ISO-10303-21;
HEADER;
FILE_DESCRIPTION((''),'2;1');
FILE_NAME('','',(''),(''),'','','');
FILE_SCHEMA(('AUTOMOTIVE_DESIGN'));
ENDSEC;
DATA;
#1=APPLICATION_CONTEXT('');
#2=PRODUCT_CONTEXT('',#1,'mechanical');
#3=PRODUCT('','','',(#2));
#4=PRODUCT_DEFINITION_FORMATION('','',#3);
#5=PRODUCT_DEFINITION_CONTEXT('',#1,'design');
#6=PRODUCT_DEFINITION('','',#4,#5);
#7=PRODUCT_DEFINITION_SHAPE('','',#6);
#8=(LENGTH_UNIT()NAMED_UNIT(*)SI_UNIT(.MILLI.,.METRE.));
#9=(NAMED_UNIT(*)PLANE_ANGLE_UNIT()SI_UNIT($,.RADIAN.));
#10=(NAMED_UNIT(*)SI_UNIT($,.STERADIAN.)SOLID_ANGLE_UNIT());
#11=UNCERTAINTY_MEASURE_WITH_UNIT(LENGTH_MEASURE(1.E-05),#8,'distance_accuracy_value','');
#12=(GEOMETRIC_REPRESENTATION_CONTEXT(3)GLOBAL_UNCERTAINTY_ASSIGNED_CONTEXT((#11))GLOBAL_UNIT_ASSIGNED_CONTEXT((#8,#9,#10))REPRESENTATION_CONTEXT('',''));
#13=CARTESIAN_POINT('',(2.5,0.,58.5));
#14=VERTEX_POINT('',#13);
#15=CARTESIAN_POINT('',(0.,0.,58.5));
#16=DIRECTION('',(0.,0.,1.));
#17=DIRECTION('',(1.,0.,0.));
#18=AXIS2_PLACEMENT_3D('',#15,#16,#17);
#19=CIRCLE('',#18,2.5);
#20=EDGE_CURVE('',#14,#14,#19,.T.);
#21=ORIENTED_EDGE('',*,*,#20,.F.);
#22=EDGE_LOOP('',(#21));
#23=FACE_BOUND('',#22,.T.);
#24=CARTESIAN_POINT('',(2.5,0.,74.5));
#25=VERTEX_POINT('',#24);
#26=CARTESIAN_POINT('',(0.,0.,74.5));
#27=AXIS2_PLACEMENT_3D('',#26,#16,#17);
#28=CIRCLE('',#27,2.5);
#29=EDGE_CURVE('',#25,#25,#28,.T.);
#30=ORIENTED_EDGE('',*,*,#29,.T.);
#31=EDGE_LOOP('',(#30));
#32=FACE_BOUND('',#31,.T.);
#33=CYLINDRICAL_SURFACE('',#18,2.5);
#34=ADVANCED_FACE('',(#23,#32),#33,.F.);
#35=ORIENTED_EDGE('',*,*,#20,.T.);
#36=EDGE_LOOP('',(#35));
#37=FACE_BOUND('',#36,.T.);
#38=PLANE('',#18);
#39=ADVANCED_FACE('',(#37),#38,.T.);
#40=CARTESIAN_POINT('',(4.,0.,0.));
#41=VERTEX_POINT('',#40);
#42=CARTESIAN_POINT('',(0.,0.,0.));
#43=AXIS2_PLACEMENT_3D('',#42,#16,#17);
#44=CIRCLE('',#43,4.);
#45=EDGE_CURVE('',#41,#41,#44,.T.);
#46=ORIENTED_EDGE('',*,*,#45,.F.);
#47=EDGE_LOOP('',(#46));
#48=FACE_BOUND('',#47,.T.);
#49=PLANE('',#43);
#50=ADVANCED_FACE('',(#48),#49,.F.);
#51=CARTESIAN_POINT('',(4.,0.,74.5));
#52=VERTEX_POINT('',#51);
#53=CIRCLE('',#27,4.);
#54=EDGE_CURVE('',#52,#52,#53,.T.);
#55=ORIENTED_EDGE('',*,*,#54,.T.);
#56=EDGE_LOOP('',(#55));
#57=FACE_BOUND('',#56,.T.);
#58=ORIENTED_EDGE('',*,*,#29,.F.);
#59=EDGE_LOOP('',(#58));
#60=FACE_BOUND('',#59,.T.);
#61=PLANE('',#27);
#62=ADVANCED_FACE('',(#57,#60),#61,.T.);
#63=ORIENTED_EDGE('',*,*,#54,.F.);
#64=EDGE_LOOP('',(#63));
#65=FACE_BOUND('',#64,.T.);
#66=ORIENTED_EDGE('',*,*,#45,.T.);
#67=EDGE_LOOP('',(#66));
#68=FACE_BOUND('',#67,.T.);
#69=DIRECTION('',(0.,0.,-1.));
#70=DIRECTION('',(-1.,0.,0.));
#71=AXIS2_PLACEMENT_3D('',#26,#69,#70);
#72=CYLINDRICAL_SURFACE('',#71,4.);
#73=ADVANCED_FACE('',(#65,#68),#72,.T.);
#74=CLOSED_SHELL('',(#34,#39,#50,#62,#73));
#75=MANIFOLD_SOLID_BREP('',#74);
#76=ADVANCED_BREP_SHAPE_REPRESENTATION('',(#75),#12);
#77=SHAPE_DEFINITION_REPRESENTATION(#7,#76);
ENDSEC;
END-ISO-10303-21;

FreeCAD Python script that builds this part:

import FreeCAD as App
import Part
import Sketcher

V = App.Vector

doc = App.newDocument("Part")
body = doc.addObject("PartDesign::Body", "Body")

# Sketch on XY plane
sketch1 = body.newObject("Sketcher::SketchObject", "Sketch")
sketch1.AttachmentSupport = (doc.getObject("XY_Plane"), [""])
sketch1.MapMode = "FlatFace"
sketch1.addGeometry(Part.Circle(V(0, 0, 0), V(0, 0, 1), 4), False)
sketch1.addConstraint([
    Sketcher.Constraint("Coincident", 0, 3, -1, 1),
    Sketcher.Constraint("Diameter", 0, 8.0),
])
pad1 = body.newObject("PartDesign::Pad", "Pad")
pad1.Profile = sketch1
pad1.Length = 74.5

# Sketch on XY plane
sketch2 = body.newObject("Sketcher::SketchObject", "Sketch001")
sketch2.AttachmentSupport = (doc.getObject("XY_Plane"), [""])
sketch2.MapMode = "FlatFace"
sketch2.AttachmentOffset = App.Placement(V(0, 0, 74.5), App.Rotation())
sketch2.addGeometry(Part.Circle(V(0, 0, 0), V(0, 0, 1), 2.5), False)
sketch2.addConstraint([
    Sketcher.Constraint("Coincident", 0, 3, -1, 1),
    Sketcher.Constraint("Diameter", 0, 5.0),
])
pocket1 = body.newObject("PartDesign::Pocket", "Pocket")
pocket1.Profile = sketch2
pocket1.Length = 16

doc.recompute()
